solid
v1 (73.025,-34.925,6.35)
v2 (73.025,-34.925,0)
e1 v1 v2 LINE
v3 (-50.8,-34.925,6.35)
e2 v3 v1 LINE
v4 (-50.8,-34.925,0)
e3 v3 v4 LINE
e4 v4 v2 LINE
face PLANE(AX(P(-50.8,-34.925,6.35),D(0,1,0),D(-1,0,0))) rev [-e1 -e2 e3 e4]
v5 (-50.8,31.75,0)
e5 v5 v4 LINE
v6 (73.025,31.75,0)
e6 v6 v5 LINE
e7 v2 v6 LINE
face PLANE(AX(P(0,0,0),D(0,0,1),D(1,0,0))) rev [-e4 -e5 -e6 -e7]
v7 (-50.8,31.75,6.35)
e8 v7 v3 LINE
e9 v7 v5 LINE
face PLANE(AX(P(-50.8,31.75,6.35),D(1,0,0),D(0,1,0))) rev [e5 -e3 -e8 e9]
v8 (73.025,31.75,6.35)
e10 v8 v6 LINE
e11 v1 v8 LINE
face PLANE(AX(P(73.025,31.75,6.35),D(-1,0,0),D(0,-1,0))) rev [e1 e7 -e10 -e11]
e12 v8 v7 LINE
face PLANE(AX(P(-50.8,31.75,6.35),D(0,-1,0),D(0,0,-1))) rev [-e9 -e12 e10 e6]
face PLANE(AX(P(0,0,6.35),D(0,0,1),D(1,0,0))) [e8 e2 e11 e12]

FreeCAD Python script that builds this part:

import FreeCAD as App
import Part
import Sketcher

V = App.Vector
Q = App.Units.Quantity


def add_polygon(sketch, points):
    """Adds a closed chain of lines whose ends are joined by coincident constraints."""
    first, n = sketch.GeometryCount, len(points)
    for a, b in zip(points, points[1:] + points[:1]):
        sketch.addGeometry(Part.LineSegment(App.Vector(*a, 0), App.Vector(*b, 0)), False)
    for i in range(n):
        sketch.addConstraint(Sketcher.Constraint("Coincident", first + i, 2, first + (i + 1) % n, 1))

doc = App.newDocument("Part")
body = doc.addObject("PartDesign::Body", "Body")

# Sketch on XY plane
sketch1 = body.newObject("Sketcher::SketchObject", "Sketch")
sketch1.AttachmentSupport = (doc.getObject("XY_Plane"), [""])
sketch1.MapMode = "FlatFace"
add_polygon(sketch1, [(-51, 32), (-51, -35), (73, -35), (73, 32)])  # lines 0-3
sketch1.addConstraint(Sketcher.Constraint("Vertical", 0))
sketch1.addConstraint(Sketcher.Constraint("Horizontal", 1))
sketch1.addConstraint(Sketcher.Constraint("Vertical", 2))
sketch1.addConstraint(Sketcher.Constraint("Horizontal", 3))
sketch1.addConstraint(Sketcher.Constraint("DistanceX", 0, 2, -1, 1, Q("2 in")))
sketch1.addConstraint(Sketcher.Constraint("DistanceX", 1, 1, 1, 2, Q("4.875 in")))
sketch1.addConstraint(Sketcher.Constraint("DistanceY", 0, 2, 0, 1, Q("2.625 in")))
sketch1.addConstraint(Sketcher.Constraint("DistanceY", -1, 1, 2, 2, Q("1.25 in")))
pad1 = body.newObject("PartDesign::Pad", "Pad")
pad1.Profile = sketch1
pad1.Length = Q("0.25 in")

doc.recompute()
